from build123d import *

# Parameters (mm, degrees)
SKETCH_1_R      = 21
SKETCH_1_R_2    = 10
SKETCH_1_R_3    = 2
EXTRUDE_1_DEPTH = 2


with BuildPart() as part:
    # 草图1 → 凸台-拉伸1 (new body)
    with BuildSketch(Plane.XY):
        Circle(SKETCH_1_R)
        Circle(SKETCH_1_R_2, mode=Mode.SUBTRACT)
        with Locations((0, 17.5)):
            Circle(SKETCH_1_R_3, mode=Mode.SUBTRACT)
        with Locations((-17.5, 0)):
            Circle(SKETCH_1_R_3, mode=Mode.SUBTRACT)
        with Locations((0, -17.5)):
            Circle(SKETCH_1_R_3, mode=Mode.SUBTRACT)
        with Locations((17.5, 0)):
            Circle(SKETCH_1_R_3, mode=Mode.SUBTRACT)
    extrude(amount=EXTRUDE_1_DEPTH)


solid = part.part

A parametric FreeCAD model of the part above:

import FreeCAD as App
import Part
import Sketcher

V = App.Vector
Q = App.Units.Quantity

doc = App.newDocument("Part")
body = doc.addObject("PartDesign::Body", "Body")

sketch1 = doc.addObject("Sketcher::SketchObject", "Sketch")
body.addObject(sketch1)
sketch1.AttachmentSupport = (doc.XY_Plane, [""])
sketch1.MapMode = "FlatFace"
sketch1.addGeometry([
    Part.Circle(V(0, 0, 0), V(0, 0, 1), 21),
    Part.Circle(V(0, -17.5, 0), V(0, 0, 1), 2),
    Part.Circle(V(-17.5, 0, 0), V(0, 0, 1), 2),
    Part.Circle(V(0, 0, 0), V(0, 0, 1), 10),
    Part.Circle(V(17.5, 0, 0), V(0, 0, 1), 2),
    Part.Circle(V(0, 17.5, 0), V(0, 0, 1), 2),
], False)
sketch1.addConstraint([
    Sketcher.Constraint("Coincident", 0, 3, -1, 1),
    Sketcher.Constraint("Coincident", 3, 3, -1, 1),
    Sketcher.Constraint("Equal", 1, 2),
    Sketcher.Constraint("Equal", 2, 4),
    Sketcher.Constraint("Equal", 4, 5),
    Sketcher.Constraint("Symmetric", 2, 3, 4, 3, -1, 1),
    Sketcher.Constraint("Symmetric", 1, 3, 5, 3, -1, 1),
    Sketcher.Constraint("PointOnObject", 1, 3, -2),
    Sketcher.Constraint("PointOnObject", 2, 3, -1),
    Sketcher.Constraint("Diameter", 0, Q("42 mm")),
    Sketcher.Constraint("Diameter", 1, Q("4 mm")),
    Sketcher.Constraint("Diameter", 3, Q("20 mm")),
    Sketcher.Constraint("DistanceX", 2, 3, 4, 3, Q("35 mm")),
    Sketcher.Constraint("DistanceY", 1, 3, 5, 3, Q("35 mm")),
])
pad1 = doc.addObject("PartDesign::Pad", "Pad")
body.addObject(pad1)
pad1.Profile = sketch1
pad1.Length = 2

doc.recompute()
